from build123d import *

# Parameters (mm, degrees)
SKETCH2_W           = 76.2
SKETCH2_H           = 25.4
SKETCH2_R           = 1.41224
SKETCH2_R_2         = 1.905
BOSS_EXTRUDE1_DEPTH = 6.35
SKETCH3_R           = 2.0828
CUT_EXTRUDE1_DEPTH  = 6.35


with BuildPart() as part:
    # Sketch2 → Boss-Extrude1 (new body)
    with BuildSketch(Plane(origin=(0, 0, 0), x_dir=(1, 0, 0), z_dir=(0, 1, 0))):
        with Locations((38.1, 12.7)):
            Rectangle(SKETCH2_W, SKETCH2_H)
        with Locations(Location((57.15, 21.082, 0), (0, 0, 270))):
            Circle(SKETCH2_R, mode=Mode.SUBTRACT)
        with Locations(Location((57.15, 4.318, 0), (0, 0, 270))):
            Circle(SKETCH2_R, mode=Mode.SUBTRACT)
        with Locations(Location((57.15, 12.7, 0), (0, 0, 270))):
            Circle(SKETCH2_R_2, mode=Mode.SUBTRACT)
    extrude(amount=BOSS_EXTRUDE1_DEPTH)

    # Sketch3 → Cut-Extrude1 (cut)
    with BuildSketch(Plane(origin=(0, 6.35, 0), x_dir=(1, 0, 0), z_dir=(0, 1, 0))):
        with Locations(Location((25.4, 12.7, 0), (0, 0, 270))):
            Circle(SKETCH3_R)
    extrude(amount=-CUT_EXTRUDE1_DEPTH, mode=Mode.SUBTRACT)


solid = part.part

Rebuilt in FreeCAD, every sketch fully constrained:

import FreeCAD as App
import Part
import Sketcher
Q = App.Units.Quantity


def add_polygon(sketch, points):
    """Adds a closed chain of lines whose ends are joined by coincident constraints."""
    first, n = sketch.GeometryCount, len(points)
    for a, b in zip(points, points[1:] + points[:1]):
        sketch.addGeometry(Part.LineSegment(App.Vector(*a, 0), App.Vector(*b, 0)), False)
    for i in range(n):
        sketch.addConstraint(Sketcher.Constraint("Coincident", first + i, 2, first + (i + 1) % n, 1))

doc = App.newDocument("Part")
body = doc.addObject("PartDesign::Body", "Body")

sketch1 = body.newObject("Sketcher::SketchObject", "Sketch")
sketch1.AttachmentSupport = (doc.getObject("XZ_Plane"), [""])
sketch1.MapMode = "FlatFace"
add_polygon(sketch1, [(0, -25.4), (0, 0), (76.2, 0), (76.2, -25.4)])
sketch1.addGeometry(Part.Circle(App.Vector(57.1, -4.3, 0), App.Vector(0, 0, 1), 1.4), False)
sketch1.addGeometry(Part.Circle(App.Vector(57.1, -12.7, 0), App.Vector(0, 0, 1), 1.9), False)
sketch1.addGeometry(Part.Circle(App.Vector(57.1, -21.1, 0), App.Vector(0, 0, 1), 1.4), False)
sketch1.addConstraint(Sketcher.Constraint("Vertical", 0))
sketch1.addConstraint(Sketcher.Constraint("Horizontal", 1))
sketch1.addConstraint(Sketcher.Constraint("Vertical", 2))
sketch1.addConstraint(Sketcher.Constraint("Horizontal", 3))
sketch1.addConstraint(Sketcher.Constraint("Coincident", 0, 2, -1, 1))
sketch1.addConstraint(Sketcher.Constraint("Equal", 4, 6))
sketch1.addConstraint(Sketcher.Constraint("Vertical", 4, 3, 5, 3))
sketch1.addConstraint(Sketcher.Constraint("Vertical", 5, 3, 6, 3))
sketch1.addConstraint(Sketcher.Constraint("Diameter", 5, Q("0.15 in")))
sketch1.addConstraint(Sketcher.Constraint("DistanceX", 1, 1, 1, 2, Q("3 in")))
sketch1.addConstraint(Sketcher.Constraint("DistanceY", 0, 1, 0, 2, Q("1 in")))
sketch1.addConstraint(Sketcher.Constraint("Diameter", 4, Q("0.1112 in")))
sketch1.addConstraint(Sketcher.Constraint("DistanceY", 5, 3, -1, 1, Q("0.5 in")))
sketch1.addConstraint(Sketcher.Constraint("DistanceX", -1, 1, 4, 3, Q("2.25 in")))
sketch1.addConstraint(Sketcher.Constraint("DistanceY", 4, 3, -1, 1, Q("0.17 in")))
sketch1.addConstraint(Sketcher.Constraint("DistanceY", 6, 3, -1, 1, Q("0.83 in")))
pad1 = body.newObject("PartDesign::Pad", "Pad")
pad1.Profile = sketch1
pad1.Length = Q("0.25 in")
pad1.Reversed = True

sketch2 = body.newObject("Sketcher::SketchObject", "Sketch001")
sketch2.AttachmentSupport = (doc.getObject("XZ_Plane"), [""])
sketch2.MapMode = "FlatFace"
sketch2.AttachmentOffset = App.Placement(App.Vector(0, 0, -0.25 * 25.4), App.Rotation())
sketch2.addGeometry(Part.Circle(App.Vector(25.4, -12.7, 0), App.Vector(0, 0, 1), 2.1), False)
sketch2.addConstraint(Sketcher.Constraint("Diameter", 0, Q("0.164 in")))
sketch2.addConstraint(Sketcher.Constraint("DistanceX", -1, 1, 0, 3, Q("1 in")))
sketch2.addConstraint(Sketcher.Constraint("DistanceY", 0, 3, -1, 1, Q("0.5 in")))
pocket1 = body.newObject("PartDesign::Pocket", "Pocket")
pocket1.Profile = sketch2
pocket1.Length = Q("0.25 in")
pocket1.Reversed = True

doc.recompute()
